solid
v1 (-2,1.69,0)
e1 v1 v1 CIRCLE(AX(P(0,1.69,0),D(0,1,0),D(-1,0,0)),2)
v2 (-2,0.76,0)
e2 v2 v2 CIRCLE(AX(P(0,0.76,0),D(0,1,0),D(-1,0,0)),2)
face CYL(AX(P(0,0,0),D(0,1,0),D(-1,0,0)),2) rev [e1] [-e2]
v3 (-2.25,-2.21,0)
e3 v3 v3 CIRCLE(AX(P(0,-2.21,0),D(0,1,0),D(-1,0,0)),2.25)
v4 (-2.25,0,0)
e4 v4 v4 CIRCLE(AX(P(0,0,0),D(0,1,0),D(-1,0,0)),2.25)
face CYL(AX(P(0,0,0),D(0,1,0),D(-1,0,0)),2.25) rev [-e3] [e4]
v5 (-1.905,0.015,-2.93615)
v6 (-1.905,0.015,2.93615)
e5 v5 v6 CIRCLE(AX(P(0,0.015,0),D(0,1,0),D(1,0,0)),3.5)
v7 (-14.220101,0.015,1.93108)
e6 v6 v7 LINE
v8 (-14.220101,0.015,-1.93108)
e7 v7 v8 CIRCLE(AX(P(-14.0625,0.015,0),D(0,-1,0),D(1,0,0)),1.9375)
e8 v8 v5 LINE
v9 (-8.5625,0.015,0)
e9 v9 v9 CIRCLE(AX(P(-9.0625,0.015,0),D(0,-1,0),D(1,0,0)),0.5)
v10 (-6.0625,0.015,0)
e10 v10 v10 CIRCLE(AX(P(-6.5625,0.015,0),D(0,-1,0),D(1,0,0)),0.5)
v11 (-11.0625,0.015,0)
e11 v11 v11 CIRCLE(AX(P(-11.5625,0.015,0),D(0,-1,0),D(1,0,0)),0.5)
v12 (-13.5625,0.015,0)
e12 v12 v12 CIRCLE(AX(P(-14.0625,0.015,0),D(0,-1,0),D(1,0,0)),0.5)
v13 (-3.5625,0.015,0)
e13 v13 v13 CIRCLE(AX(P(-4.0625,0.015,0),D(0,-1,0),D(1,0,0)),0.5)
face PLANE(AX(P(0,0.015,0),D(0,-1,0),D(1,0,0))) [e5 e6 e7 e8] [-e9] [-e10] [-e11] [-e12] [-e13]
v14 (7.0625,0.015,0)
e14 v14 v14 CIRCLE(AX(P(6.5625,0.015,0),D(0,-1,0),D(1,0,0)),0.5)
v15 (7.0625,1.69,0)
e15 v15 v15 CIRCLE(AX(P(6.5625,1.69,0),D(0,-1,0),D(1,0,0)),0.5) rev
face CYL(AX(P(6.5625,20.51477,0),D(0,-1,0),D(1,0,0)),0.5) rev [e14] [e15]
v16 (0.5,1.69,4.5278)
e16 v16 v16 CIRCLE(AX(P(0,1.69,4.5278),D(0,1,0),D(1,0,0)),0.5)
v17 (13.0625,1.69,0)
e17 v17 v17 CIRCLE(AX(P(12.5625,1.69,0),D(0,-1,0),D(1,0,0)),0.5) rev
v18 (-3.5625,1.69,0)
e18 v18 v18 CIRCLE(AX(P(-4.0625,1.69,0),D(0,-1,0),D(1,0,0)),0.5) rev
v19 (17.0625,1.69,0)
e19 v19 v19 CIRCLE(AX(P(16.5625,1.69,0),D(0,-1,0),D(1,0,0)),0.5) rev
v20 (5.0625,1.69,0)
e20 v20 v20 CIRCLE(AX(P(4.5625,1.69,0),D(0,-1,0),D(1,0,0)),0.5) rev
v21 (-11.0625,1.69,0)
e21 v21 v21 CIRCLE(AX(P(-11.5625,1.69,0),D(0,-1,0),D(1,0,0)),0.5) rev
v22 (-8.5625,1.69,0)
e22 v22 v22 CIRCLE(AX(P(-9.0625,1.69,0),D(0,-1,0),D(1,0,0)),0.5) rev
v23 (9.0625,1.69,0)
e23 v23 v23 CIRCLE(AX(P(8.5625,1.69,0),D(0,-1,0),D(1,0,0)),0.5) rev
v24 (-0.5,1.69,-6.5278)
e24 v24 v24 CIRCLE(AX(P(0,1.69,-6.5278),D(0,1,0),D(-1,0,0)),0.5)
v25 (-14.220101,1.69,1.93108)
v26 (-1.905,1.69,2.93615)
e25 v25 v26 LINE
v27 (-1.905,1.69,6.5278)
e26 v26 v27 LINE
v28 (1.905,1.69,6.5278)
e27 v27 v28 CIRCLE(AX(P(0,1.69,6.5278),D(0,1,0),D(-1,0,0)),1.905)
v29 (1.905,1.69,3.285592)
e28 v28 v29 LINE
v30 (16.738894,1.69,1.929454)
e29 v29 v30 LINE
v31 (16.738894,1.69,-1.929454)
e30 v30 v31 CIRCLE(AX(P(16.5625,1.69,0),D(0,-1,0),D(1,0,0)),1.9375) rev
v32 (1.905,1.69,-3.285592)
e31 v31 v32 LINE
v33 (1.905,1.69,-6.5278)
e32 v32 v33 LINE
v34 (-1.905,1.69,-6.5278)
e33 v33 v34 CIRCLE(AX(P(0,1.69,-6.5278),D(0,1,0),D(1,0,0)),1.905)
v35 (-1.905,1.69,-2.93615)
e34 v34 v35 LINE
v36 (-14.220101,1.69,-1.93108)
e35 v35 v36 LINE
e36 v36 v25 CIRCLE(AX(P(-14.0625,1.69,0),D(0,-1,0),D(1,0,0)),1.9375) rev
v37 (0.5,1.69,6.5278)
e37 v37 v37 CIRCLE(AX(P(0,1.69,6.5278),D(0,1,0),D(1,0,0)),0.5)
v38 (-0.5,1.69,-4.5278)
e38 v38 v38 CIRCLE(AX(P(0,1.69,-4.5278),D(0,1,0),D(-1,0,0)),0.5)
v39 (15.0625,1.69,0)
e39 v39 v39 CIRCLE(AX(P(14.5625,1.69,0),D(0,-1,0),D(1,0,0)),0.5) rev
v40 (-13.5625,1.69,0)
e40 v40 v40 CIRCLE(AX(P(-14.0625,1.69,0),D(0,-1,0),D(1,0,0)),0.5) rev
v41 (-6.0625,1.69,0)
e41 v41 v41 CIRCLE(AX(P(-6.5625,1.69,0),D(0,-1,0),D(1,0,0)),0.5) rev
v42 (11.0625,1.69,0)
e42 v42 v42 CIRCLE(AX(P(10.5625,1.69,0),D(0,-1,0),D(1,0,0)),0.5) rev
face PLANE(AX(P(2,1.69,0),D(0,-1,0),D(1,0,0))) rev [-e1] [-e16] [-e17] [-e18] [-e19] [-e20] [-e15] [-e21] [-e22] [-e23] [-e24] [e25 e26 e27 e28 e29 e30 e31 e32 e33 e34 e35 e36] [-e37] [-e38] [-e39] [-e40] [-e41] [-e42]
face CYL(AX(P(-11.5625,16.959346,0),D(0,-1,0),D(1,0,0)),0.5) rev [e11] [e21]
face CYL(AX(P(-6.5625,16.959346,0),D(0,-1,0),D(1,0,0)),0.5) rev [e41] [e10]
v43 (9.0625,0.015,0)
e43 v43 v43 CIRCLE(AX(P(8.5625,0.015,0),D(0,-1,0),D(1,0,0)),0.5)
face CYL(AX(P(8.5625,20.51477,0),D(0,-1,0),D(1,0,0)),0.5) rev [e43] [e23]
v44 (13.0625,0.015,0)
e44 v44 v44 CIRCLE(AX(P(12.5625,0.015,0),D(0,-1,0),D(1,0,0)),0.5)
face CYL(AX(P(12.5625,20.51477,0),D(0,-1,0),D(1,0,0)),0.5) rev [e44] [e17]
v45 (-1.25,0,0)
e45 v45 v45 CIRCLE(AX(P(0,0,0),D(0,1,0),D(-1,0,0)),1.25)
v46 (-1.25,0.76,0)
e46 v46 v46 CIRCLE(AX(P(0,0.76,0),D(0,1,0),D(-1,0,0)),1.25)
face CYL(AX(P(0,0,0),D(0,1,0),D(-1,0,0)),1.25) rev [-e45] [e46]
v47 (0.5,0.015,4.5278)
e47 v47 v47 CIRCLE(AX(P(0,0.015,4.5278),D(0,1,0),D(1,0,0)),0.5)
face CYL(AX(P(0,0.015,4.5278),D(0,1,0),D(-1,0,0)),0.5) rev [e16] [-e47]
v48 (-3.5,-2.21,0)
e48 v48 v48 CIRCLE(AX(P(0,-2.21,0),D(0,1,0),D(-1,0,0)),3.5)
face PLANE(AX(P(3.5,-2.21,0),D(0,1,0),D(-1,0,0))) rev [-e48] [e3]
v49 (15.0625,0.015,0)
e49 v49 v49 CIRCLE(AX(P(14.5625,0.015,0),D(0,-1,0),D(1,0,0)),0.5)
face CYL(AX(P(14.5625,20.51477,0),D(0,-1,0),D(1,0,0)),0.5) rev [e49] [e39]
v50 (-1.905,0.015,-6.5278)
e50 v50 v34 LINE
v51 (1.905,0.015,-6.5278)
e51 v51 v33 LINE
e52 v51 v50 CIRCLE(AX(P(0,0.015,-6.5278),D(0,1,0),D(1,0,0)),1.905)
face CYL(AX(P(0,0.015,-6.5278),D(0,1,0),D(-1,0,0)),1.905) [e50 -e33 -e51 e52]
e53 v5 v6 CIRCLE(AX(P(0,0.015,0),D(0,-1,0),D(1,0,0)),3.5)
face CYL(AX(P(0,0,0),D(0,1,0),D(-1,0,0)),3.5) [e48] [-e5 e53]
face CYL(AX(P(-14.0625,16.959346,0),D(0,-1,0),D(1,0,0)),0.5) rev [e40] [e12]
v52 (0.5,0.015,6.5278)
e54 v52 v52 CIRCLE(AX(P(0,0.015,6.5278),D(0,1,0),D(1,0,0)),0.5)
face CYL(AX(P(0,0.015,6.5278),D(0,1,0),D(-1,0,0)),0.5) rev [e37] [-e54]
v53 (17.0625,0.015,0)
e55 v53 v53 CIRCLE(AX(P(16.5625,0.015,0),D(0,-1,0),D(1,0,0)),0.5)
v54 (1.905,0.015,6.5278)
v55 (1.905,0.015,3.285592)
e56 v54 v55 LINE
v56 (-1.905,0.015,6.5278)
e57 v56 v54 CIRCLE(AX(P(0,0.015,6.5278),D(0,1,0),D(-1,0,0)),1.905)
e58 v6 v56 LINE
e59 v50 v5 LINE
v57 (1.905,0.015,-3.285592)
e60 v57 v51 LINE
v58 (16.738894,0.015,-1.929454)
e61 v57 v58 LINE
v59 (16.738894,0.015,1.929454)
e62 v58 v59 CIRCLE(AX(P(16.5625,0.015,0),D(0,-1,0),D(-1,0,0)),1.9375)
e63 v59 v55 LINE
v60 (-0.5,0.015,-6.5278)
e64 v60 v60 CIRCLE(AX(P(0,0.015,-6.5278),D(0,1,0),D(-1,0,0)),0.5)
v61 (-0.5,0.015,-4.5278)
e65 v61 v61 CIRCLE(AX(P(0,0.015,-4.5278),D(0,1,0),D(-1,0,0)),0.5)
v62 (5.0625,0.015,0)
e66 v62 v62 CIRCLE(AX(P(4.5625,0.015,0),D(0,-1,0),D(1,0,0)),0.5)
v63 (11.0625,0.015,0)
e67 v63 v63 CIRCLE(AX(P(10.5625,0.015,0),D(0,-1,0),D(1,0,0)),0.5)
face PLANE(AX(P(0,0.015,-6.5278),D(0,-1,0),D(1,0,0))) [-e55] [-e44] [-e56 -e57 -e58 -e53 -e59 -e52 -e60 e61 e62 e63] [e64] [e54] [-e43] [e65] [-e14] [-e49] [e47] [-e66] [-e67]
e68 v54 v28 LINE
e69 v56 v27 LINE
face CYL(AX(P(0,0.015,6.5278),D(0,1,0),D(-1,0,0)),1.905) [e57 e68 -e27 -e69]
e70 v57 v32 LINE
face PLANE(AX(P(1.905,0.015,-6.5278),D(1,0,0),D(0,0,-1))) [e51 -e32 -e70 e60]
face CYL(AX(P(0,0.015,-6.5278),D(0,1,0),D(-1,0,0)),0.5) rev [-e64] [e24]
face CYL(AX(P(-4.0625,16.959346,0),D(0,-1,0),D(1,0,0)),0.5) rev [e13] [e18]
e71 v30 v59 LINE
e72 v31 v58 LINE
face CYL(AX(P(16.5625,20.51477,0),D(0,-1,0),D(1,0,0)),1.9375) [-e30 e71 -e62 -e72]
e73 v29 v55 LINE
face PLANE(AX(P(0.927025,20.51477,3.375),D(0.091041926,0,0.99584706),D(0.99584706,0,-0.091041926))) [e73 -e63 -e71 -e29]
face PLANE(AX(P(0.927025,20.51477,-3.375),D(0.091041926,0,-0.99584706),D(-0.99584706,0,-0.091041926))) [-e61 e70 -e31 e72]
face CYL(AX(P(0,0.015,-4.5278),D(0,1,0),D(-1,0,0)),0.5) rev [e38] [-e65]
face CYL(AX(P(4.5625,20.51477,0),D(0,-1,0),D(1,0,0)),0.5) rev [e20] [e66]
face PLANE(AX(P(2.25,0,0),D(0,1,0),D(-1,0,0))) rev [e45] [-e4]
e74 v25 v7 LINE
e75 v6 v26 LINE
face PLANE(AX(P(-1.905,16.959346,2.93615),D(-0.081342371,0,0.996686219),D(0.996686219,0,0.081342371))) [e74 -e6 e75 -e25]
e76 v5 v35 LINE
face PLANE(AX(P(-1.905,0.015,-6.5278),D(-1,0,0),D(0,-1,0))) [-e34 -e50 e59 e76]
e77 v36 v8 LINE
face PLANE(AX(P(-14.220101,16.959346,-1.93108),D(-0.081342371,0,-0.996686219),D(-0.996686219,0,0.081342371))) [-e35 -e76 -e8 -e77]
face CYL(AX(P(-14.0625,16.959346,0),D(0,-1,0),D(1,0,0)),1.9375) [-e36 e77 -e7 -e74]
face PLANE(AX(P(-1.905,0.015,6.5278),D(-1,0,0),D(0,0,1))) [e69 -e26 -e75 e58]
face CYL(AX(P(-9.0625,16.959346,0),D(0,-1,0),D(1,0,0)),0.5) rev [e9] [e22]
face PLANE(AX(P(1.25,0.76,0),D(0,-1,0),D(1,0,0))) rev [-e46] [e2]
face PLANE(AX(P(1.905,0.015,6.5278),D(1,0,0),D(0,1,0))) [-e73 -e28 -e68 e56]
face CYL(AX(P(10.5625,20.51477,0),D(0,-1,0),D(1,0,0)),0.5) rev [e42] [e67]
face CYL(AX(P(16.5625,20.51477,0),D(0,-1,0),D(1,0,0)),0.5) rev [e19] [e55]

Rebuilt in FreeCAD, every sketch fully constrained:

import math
import FreeCAD as App
import Part
import Sketcher
from FreeCAD import Vector
Q = App.Units.Quantity


def add_polygon(sketch, points):
    """Adds a closed chain of lines whose ends are joined by coincident constraints."""
    first, n = sketch.GeometryCount, len(points)
    for a, b in zip(points, points[1:] + points[:1]):
        sketch.addGeometry(Part.LineSegment(App.Vector(*a, 0), App.Vector(*b, 0)), False)
    for i in range(n):
        sketch.addConstraint(Sketcher.Constraint("Coincident", first + i, 2, first + (i + 1) % n, 1))

doc = App.newDocument("Part")
body = doc.addObject("PartDesign::Body", "Body")

# Sketch on XY plane
sketch1 = body.newObject("Sketcher::SketchObject", "Sketch")
sketch1.AttachmentSupport = (doc.getObject("XY_Plane"), [""])
sketch1.MapMode = "FlatFace"
add_polygon(sketch1, [(1.2, 0), (2.2, 0), (2.2, -2.2), (3.5, -2.2), (3.5, 1.7), (2, 1.7), (2, 0.8), (1.2, 0.8)])  # lines 0-7
sketch1.addConstraint(Sketcher.Constraint("Horizontal", 0))
sketch1.addConstraint(Sketcher.Constraint("Vertical", 1))
sketch1.addConstraint(Sketcher.Constraint("Horizontal", 2))
sketch1.addConstraint(Sketcher.Constraint("Vertical", 3))
sketch1.addConstraint(Sketcher.Constraint("Horizontal", 4))
sketch1.addConstraint(Sketcher.Constraint("Vertical", 5))
sketch1.addConstraint(Sketcher.Constraint("Horizontal", 6))
sketch1.addConstraint(Sketcher.Constraint("Vertical", 7))
sketch1.addConstraint(Sketcher.Constraint("PointOnObject", 0, 2, -1))
sketch1.addConstraint(Sketcher.Constraint("DistanceX", 0, 1, 0, 2, Q("1 mm")))
sketch1.addConstraint(Sketcher.Constraint("DistanceX", 4, 2, 4, 1, Q("1.5 mm")))
sketch1.addConstraint(Sketcher.Constraint("DistanceY", 3, 1, 3, 2, Q("3.9 mm")))
sketch1.addConstraint(Sketcher.Constraint("DistanceX", -1, 1, 4, 2, Q("2 mm")))
sketch1.addConstraint(Sketcher.Constraint("DistanceX", 2, 1, 2, 2, Q("1.25 mm")))
sketch1.addConstraint(Sketcher.Constraint("DistanceY", 1, 2, 1, 1, Q("2.21 mm")))
sketch1.addConstraint(Sketcher.Constraint("DistanceY", 5, 2, 5, 1, Q("0.93 mm")))
revolution = body.newObject("PartDesign::Revolution", "Revolution")
revolution.Profile = sketch1
revolution.ReferenceAxis = (sketch1, ["V_Axis"])
revolution.Angle = 360

# Sketch on XZ plane
sketch2 = body.newObject("Sketcher::SketchObject", "Sketch001")
sketch2.AttachmentSupport = (doc.getObject("XZ_Plane"), [""])
sketch2.MapMode = "FlatFace"
sketch2.AttachmentOffset = App.Placement(Vector(0, 0, -0.015), App.Rotation())
sketch2.addGeometry(Part.LineSegment(Vector(-1.9, -6.5, 0), Vector(-1.9, -2.9, 0)), False)
sketch2.addGeometry(Part.ArcOfCircle(Part.Circle(Vector(0, 0, 0), Vector(0, 0, 1), 3.5), math.radians(-123), math.radians(-57)), False)
sketch2.addGeometry(Part.LineSegment(Vector(1.9, -2.9, 0), Vector(1.9, -6.5, 0)), False)
sketch2.addGeometry(Part.ArcOfCircle(Part.Circle(Vector(0, -6.5, 0), Vector(0, 0, 1), 1.9), math.radians(180), math.radians(360)), False)
sketch2.addGeometry(Part.Circle(Vector(0, -4.5, 0), Vector(0, 0, 1), 0.5), False)
sketch2.addGeometry(Part.Circle(Vector(0, -6.5, 0), Vector(0, 0, 1), 0.5), False)
sketch2.addConstraint(Sketcher.Constraint("Coincident", 0, 2, 1, 1))
sketch2.addConstraint(Sketcher.Constraint("Coincident", 1, 2, 2, 1))
sketch2.addConstraint(Sketcher.Constraint("Tangent", 2, 2, 3, 2))
sketch2.addConstraint(Sketcher.Constraint("Tangent", 3, 1, 0, 1))
sketch2.addConstraint(Sketcher.Constraint("Vertical", 0))
sketch2.addConstraint(Sketcher.Constraint("Vertical", 2))
sketch2.addConstraint(Sketcher.Constraint("Coincident", 1, 3, -1, 1))
sketch2.addConstraint(Sketcher.Constraint("Coincident", 5, 3, 3, 3))
sketch2.addConstraint(Sketcher.Constraint("Equal", 4, 5))
sketch2.addConstraint(Sketcher.Constraint("PointOnObject", 3, 3, -2))
sketch2.addConstraint(Sketcher.Constraint("PointOnObject", 4, 3, -2))
sketch2.addConstraint(Sketcher.Constraint("Diameter", 4, Q("1 mm")))
sketch2.addConstraint(Sketcher.Constraint("Radius", 1, Q("3.5 mm")))
sketch2.addConstraint(Sketcher.Constraint("Radius", 3, Q("1.905 mm")))
sketch2.addConstraint(Sketcher.Constraint("DistanceY", 3, 3, 4, 3, Q("2 mm")))
sketch2.addConstraint(Sketcher.Constraint("DistanceY", 0, 1, 0, 2, Q("3.59165 mm")))
pad1 = body.newObject("PartDesign::Pad", "Pad")
pad1.Profile = sketch2
pad1.Length = 1.675
pad1.Reversed = True
doc.recompute()

polarpattern = body.newObject("PartDesign::PolarPattern", "PolarPattern")
polarpattern.Originals = [pad1]
polarpattern.Axis = (doc.getObject("Y_Axis"), [""])
polarpattern.Angle = 360
polarpattern.Occurrences = 2
body.Tip = polarpattern

# Sketch on XZ plane
sketch3 = body.newObject("Sketcher::SketchObject", "Sketch002")
sketch3.AttachmentSupport = (doc.getObject("XZ_Plane"), [""])
sketch3.MapMode = "FlatFace"
sketch3.AttachmentOffset = App.Placement(Vector(0, 0, -0.015), App.Rotation())
sketch3.addGeometry(Part.LineSegment(Vector(0.9, -3.4, 0), Vector(16.7, -1.9, 0)), False)
sketch3.addGeometry(Part.ArcOfCircle(Part.Circle(Vector(16.6, 0, 0), Vector(0, 0, 1), 1.9), math.radians(-85), math.radians(85)), False)
sketch3.addGeometry(Part.LineSegment(Vector(16.7, 1.9, 0), Vector(0.9, 3.4, 0)), False)
sketch3.addGeometry(Part.ArcOfCircle(Part.Circle(Vector(0, 0, 0), Vector(0, 0, 1), 3.5), math.radians(-75), math.radians(75)), False)
sketch3.addGeometry(Part.Circle(Vector(4.6, 0, 0), Vector(0, 0, 1), 0.5), False)
sketch3.addGeometry(Part.Circle(Vector(6.6, 0, 0), Vector(0, 0, 1), 0.5), False)
sketch3.addGeometry(Part.Circle(Vector(8.6, 0, 0), Vector(0, 0, 1), 0.5), False)
sketch3.addGeometry(Part.Circle(Vector(10.6, 0, 0), Vector(0, 0, 1), 0.5), False)
sketch3.addGeometry(Part.Circle(Vector(12.6, 0, 0), Vector(0, 0, 1), 0.5), False)
sketch3.addGeometry(Part.Circle(Vector(14.6, 0, 0), Vector(0, 0, 1), 0.5), False)
sketch3.addGeometry(Part.Circle(Vector(16.6, 0, 0), Vector(0, 0, 1), 0.5), False)
sketch3.addConstraint(Sketcher.Constraint("Tangent", 0, 2, 1, 1))
sketch3.addConstraint(Sketcher.Constraint("Tangent", 1, 2, 2, 1))
sketch3.addConstraint(Sketcher.Constraint("Coincident", 2, 2, 3, 2))
sketch3.addConstraint(Sketcher.Constraint("Coincident", 3, 1, 0, 1))
sketch3.addConstraint(Sketcher.Constraint("Coincident", 3, 3, -1, 1))
sketch3.addConstraint(Sketcher.Constraint("Coincident", 10, 3, 1, 3))
sketch3.addConstraint(Sketcher.Constraint("Equal", 4, 5))
sketch3.addConstraint(Sketcher.Constraint("Equal", 5, 6))
sketch3.addConstraint(Sketcher.Constraint("Equal", 6, 7))
sketch3.addConstraint(Sketcher.Constraint("Equal", 7, 8))
sketch3.addConstraint(Sketcher.Constraint("Equal", 8, 9))
sketch3.addConstraint(Sketcher.Constraint("Equal", 9, 10))
sketch3.addConstraint(Sketcher.Constraint("Symmetric", 0, 2, 1, 2, -1))
sketch3.addConstraint(Sketcher.Constraint("PointOnObject", 4, 3, -1))
sketch3.addConstraint(Sketcher.Constraint("PointOnObject", 5, 3, -1))
sketch3.addConstraint(Sketcher.Constraint("PointOnObject", 6, 3, -1))
sketch3.addConstraint(Sketcher.Constraint("PointOnObject", 7, 3, -1))
sketch3.addConstraint(Sketcher.Constraint("PointOnObject", 8, 3, -1))
sketch3.addConstraint(Sketcher.Constraint("PointOnObject", 9, 3, -1))
sketch3.addConstraint(Sketcher.Constraint("Diameter", 4, Q("1 mm")))
sketch3.addConstraint(Sketcher.Constraint("Radius", 3, Q("3.5 mm")))
sketch3.addConstraint(Sketcher.Constraint("DistanceX", 4, 3, 1, 3, Q("12 mm")))
sketch3.addConstraint(Sketcher.Constraint("DistanceX", 4, 3, 5, 3, Q("2 mm")))
sketch3.addConstraint(Sketcher.Constraint("DistanceX", 5, 3, 6, 3, Q("2 mm")))
sketch3.addConstraint(Sketcher.Constraint("DistanceX", 6, 3, 7, 3, Q("2 mm")))
sketch3.addConstraint(Sketcher.Constraint("DistanceX", 7, 3, 8, 3, Q("2 mm")))
sketch3.addConstraint(Sketcher.Constraint("DistanceX", 9, 3, 1, 3, Q("2 mm")))
sketch3.addConstraint(Sketcher.Constraint("Radius", 1, Q("1.9375 mm")))
sketch3.addConstraint(Sketcher.Constraint("DistanceY", 3, 1, 2, 2, Q("6.75 mm")))
sketch3.addConstraint(Sketcher.Constraint("DistanceX", -1, 1, 1, 3, Q("16.5625 mm")))
pad2 = body.newObject("PartDesign::Pad", "Pad001")
pad2.Profile = sketch3
pad2.Length = 1.675
pad2.Reversed = True

# Sketch on XZ plane
sketch4 = body.newObject("Sketcher::SketchObject", "Sketch003")
sketch4.AttachmentSupport = (doc.getObject("XZ_Plane"), [""])
sketch4.MapMode = "FlatFace"
sketch4.AttachmentOffset = App.Placement(Vector(0, 0, -0.015), App.Rotation())
sketch4.addGeometry(Part.LineSegment(Vector(-1.9, 2.9, 0), Vector(-14.2, 1.9, 0)), False)
sketch4.addGeometry(Part.ArcOfCircle(Part.Circle(Vector(-14.1, 0, 0), Vector(0, 0, 1), 1.9), math.radians(95), math.radians(265)), False)
sketch4.addGeometry(Part.LineSegment(Vector(-14.2, -1.9, 0), Vector(-1.9, -2.9, 0)), False)
sketch4.addGeometry(Part.ArcOfCircle(Part.Circle(Vector(0, 0, 0), Vector(0, 0, 1), 3.5), math.radians(123), math.radians(237)), False)
sketch4.addGeometry(Part.Circle(Vector(-14.1, 0, 0), Vector(0, 0, 1), 0.5), False)
sketch4.addGeometry(Part.Circle(Vector(-11.6, 0, 0), Vector(0, 0, 1), 0.5), False)
sketch4.addGeometry(Part.Circle(Vector(-9.1, 0, 0), Vector(0, 0, 1), 0.5), False)
sketch4.addGeometry(Part.Circle(Vector(-6.6, 0, 0), Vector(0, 0, 1), 0.5), False)
sketch4.addGeometry(Part.Circle(Vector(-4.1, 0, 0), Vector(0, 0, 1), 0.5), False)
sketch4.addConstraint(Sketcher.Constraint("Tangent", 0, 2, 1, 1))
sketch4.addConstraint(Sketcher.Constraint("Tangent", 1, 2, 2, 1))
sketch4.addConstraint(Sketcher.Constraint("Coincident", 2, 2, 3, 2))
sketch4.addConstraint(Sketcher.Constraint("Coincident", 3, 1, 0, 1))
sketch4.addConstraint(Sketcher.Constraint("Coincident", 3, 3, -1, 1))
sketch4.addConstraint(Sketcher.Constraint("Coincident", 4, 3, 1, 3))
sketch4.addConstraint(Sketcher.Constraint("Equal", 4, 5))
sketch4.addConstraint(Sketcher.Constraint("Equal", 5, 6))
sketch4.addConstraint(Sketcher.Constraint("Equal", 6, 7))
sketch4.addConstraint(Sketcher.Constraint("Equal", 7, 8))
sketch4.addConstraint(Sketcher.Constraint("Symmetric", 0, 2, 1, 2, -1))
sketch4.addConstraint(Sketcher.Constraint("PointOnObject", 5, 3, -1))
sketch4.addConstraint(Sketcher.Constraint("PointOnObject", 6, 3, -1))
sketch4.addConstraint(Sketcher.Constraint("PointOnObject", 7, 3, -1))
sketch4.addConstraint(Sketcher.Constraint("PointOnObject", 8, 3, -1))
sketch4.addConstraint(Sketcher.Constraint("Diameter", 4, Q("1 mm")))
sketch4.addConstraint(Sketcher.Constraint("Radius", 3, Q("3.5 mm")))
sketch4.addConstraint(Sketcher.Constraint("DistanceX", 1, 3, 6, 3, Q("5 mm")))
sketch4.addConstraint(Sketcher.Constraint("DistanceX", 5, 3, 7, 3, Q("5 mm")))
sketch4.addConstraint(Sketcher.Constraint("DistanceX", 6, 3, 8, 3, Q("5 mm")))
sketch4.addConstraint(Sketcher.Constraint("Radius", 1, Q("1.9375 mm")))
sketch4.addConstraint(Sketcher.Constraint("DistanceX", 1, 3, 5, 3, Q("2.5 mm")))
sketch4.addConstraint(Sketcher.Constraint("DistanceX", 2, 2, -1, 1, Q("1.905 mm")))
sketch4.addConstraint(Sketcher.Constraint("DistanceX", 1, 3, -1, 1, Q("14.0625 mm")))
pad3 = body.newObject("PartDesign::Pad", "Pad002")
pad3.Profile = sketch4
pad3.Length = 1.675
pad3.Reversed = True

doc.recompute()
